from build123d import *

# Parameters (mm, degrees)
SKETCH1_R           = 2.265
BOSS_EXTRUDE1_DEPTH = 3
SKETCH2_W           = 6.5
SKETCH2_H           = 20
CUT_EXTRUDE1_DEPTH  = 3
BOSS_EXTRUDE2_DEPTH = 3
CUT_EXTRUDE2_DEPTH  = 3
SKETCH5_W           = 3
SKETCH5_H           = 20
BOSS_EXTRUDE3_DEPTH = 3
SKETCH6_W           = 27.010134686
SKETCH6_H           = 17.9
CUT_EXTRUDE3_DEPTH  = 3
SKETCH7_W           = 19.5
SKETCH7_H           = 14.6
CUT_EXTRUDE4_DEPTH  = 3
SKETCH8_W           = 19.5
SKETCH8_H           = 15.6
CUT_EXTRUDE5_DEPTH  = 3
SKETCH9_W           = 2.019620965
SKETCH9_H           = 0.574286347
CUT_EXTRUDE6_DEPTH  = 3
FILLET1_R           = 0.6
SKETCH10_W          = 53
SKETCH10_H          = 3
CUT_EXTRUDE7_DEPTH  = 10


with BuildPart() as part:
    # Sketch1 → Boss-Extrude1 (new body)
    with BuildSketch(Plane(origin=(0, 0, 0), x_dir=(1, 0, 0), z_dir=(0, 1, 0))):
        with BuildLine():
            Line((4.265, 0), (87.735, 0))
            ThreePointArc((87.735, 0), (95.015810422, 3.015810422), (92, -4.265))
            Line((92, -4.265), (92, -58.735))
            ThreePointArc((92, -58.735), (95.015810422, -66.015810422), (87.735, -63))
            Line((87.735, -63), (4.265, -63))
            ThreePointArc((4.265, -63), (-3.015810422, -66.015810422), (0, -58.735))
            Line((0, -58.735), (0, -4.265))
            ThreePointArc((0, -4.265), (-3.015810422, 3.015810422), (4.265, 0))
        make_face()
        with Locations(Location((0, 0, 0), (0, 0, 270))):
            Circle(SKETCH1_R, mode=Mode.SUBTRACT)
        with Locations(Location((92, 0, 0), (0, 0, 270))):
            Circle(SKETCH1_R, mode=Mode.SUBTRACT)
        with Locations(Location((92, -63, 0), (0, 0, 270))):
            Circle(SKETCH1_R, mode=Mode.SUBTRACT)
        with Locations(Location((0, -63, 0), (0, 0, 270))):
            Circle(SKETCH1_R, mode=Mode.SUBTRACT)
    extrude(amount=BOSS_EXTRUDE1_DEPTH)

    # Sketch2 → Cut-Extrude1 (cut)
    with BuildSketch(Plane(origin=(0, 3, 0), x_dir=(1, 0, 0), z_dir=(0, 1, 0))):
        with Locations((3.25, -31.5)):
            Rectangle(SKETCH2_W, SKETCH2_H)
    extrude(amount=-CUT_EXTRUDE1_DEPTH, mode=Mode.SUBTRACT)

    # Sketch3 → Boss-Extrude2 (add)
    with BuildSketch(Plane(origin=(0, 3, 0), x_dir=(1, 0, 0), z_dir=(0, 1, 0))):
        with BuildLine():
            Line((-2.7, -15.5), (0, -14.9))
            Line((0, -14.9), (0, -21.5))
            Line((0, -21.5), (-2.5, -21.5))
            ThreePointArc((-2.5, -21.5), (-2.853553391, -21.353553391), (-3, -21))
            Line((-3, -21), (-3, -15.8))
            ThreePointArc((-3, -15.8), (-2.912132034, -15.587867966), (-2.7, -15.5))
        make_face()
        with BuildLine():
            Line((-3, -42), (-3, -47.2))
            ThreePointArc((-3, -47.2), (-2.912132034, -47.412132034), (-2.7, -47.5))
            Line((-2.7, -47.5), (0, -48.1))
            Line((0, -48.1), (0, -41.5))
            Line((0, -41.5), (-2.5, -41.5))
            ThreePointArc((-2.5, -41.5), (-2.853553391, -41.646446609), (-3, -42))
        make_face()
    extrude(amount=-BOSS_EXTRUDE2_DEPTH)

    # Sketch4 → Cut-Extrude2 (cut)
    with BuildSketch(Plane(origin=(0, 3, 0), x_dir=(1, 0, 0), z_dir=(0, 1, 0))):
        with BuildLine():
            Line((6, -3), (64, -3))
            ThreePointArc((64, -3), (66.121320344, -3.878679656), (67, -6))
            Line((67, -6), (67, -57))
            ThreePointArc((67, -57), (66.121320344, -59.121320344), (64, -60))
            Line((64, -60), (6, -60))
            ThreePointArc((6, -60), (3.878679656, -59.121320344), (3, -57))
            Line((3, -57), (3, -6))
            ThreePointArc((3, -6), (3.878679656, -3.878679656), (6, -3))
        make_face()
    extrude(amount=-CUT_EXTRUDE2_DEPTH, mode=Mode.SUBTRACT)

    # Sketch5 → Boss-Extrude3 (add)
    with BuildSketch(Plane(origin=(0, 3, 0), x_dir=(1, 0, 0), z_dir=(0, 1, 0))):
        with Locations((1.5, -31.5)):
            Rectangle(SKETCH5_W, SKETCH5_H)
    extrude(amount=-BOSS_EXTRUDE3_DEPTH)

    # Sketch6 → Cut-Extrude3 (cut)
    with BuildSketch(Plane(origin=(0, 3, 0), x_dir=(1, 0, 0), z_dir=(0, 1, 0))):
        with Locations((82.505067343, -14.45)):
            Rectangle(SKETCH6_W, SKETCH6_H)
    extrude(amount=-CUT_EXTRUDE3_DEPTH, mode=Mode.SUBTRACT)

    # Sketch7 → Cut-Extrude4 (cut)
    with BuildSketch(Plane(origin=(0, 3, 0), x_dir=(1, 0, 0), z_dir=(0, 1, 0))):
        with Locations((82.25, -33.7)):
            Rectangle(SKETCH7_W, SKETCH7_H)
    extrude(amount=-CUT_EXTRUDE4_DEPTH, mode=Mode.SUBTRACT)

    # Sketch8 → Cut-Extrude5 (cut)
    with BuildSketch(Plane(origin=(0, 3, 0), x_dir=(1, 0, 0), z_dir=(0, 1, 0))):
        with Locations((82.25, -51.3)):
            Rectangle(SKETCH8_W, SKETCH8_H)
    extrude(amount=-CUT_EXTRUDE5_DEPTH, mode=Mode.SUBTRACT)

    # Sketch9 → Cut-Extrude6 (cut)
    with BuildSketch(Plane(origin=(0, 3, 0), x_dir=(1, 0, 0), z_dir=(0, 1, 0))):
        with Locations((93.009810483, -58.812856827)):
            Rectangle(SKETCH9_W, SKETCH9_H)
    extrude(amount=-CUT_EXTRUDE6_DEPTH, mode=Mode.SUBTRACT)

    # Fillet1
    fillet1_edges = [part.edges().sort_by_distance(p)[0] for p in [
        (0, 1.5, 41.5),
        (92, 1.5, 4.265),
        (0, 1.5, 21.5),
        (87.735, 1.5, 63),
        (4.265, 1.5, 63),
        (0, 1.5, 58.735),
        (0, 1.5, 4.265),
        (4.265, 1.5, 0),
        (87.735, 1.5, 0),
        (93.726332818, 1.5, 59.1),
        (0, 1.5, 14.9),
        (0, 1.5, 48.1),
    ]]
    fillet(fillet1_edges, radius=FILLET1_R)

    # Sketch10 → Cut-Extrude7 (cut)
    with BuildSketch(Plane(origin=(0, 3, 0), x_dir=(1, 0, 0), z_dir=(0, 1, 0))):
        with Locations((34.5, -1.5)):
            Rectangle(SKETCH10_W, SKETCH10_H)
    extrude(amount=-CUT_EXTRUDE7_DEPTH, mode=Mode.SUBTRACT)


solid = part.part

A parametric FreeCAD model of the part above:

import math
import FreeCAD as App
import Part
import Sketcher
Q = App.Units.Quantity


def edges_at(feature, points):
    """Names of the edges that pass closest to the given points."""
    edges = feature.Shape.Edges
    near = lambda p: min(range(len(edges)), key=lambda i: edges[i].distToShape(Part.Vertex(*p))[0])
    return sorted({f"Edge{near(p) + 1}" for p in points})

doc = App.newDocument("Part")
body = doc.addObject("PartDesign::Body", "Body")

sketch1 = doc.addObject("Sketcher::SketchObject", "Sketch")
body.addObject(sketch1)
sketch1.AttachmentSupport = (doc.XZ_Plane, [""])
sketch1.MapMode = "FlatFace"
sketch1.addGeometry(Part.LineSegment(App.Vector(87.7, 0, 0), App.Vector(4.3, 0, 0)), False)
sketch1.addGeometry(Part.ArcOfCircle(Part.Circle(App.Vector(0, 0, 0), App.Vector(0, 0, 1), 4.3), math.radians(90), math.radians(360)), False)
sketch1.addGeometry(Part.LineSegment(App.Vector(0, 4.3, 0), App.Vector(0, 58.7, 0)), False)
sketch1.addGeometry(Part.ArcOfCircle(Part.Circle(App.Vector(0, 63, 0), App.Vector(0, 0, 1), 4.3), math.radians(0), math.radians(270)), False)
sketch1.addGeometry(Part.LineSegment(App.Vector(4.3, 63, 0), App.Vector(87.7, 63, 0)), False)
sketch1.addGeometry(Part.ArcOfCircle(Part.Circle(App.Vector(92, 63, 0), App.Vector(0, 0, 1), 4.3), math.radians(-90), math.radians(180)), False)
sketch1.addGeometry(Part.LineSegment(App.Vector(92, 58.7, 0), App.Vector(92, 4.3, 0)), False)
sketch1.addGeometry(Part.ArcOfCircle(Part.Circle(App.Vector(92, 0, 0), App.Vector(0, 0, 1), 4.3), math.radians(180), math.radians(450)), False)
sketch1.addGeometry(Part.Circle(App.Vector(92, 63, 0), App.Vector(0, 0, 1), 2.3), False)
sketch1.addGeometry(Part.Circle(App.Vector(0, 63, 0), App.Vector(0, 0, 1), 2.3), False)
sketch1.addGeometry(Part.Circle(App.Vector(92, 0, 0), App.Vector(0, 0, 1), 2.3), False)
sketch1.addGeometry(Part.Circle(App.Vector(0, 0, 0), App.Vector(0, 0, 1), 2.3), False)
sketch1.addConstraint(Sketcher.Constraint("Coincident", 0, 2, 1, 2))
sketch1.addConstraint(Sketcher.Constraint("Coincident", 1, 1, 2, 1))
sketch1.addConstraint(Sketcher.Constraint("Coincident", 2, 2, 3, 2))
sketch1.addConstraint(Sketcher.Constraint("Coincident", 3, 1, 4, 1))
sketch1.addConstraint(Sketcher.Constraint("Coincident", 4, 2, 5, 2))
sketch1.addConstraint(Sketcher.Constraint("Coincident", 5, 1, 6, 1))
sketch1.addConstraint(Sketcher.Constraint("Coincident", 6, 2, 7, 2))
sketch1.addConstraint(Sketcher.Constraint("Coincident", 7, 1, 0, 1))
sketch1.addConstraint(Sketcher.Constraint("Horizontal", 0))
sketch1.addConstraint(Sketcher.Constraint("Vertical", 2))
sketch1.addConstraint(Sketcher.Constraint("Horizontal", 4))
sketch1.addConstraint(Sketcher.Constraint("Vertical", 6))
sketch1.addConstraint(Sketcher.Constraint("Coincident", 1, 3, -1, 1))
sketch1.addConstraint(Sketcher.Constraint("Coincident", 11, 3, -1, 1))
sketch1.addConstraint(Sketcher.Constraint("Coincident", 8, 3, 5, 3))
sketch1.addConstraint(Sketcher.Constraint("Coincident", 9, 3, 3, 3))
sketch1.addConstraint(Sketcher.Constraint("Coincident", 10, 3, 7, 3))
sketch1.addConstraint(Sketcher.Constraint("Equal", 1, 3))
sketch1.addConstraint(Sketcher.Constraint("Equal", 3, 5))
sketch1.addConstraint(Sketcher.Constraint("Equal", 5, 7))
sketch1.addConstraint(Sketcher.Constraint("Equal", 8, 9))
sketch1.addConstraint(Sketcher.Constraint("Equal", 9, 10))
sketch1.addConstraint(Sketcher.Constraint("Equal", 10, 11))
sketch1.addConstraint(Sketcher.Constraint("PointOnObject", 3, 3, -2))
sketch1.addConstraint(Sketcher.Constraint("PointOnObject", 7, 3, -1))
sketch1.addConstraint(Sketcher.Constraint("PointOnObject", 0, 2, -1))
sketch1.addConstraint(Sketcher.Constraint("PointOnObject", 1, 1, -2))
sketch1.addConstraint(Sketcher.Constraint("Horizontal", 3, 3, 5, 3))
sketch1.addConstraint(Sketcher.Constraint("Horizontal", 9, 3, 3, 1))
sketch1.addConstraint(Sketcher.Constraint("Vertical", 5, 3, 7, 3))
sketch1.addConstraint(Sketcher.Constraint("Vertical", 10, 3, 5, 1))
sketch1.addConstraint(Sketcher.Constraint("Diameter", 8, Q("4.53 mm")))
sketch1.addConstraint(Sketcher.Constraint("DistanceY", -1, 1, 3, 3, Q("63 mm")))
sketch1.addConstraint(Sketcher.Constraint("DistanceX", -1, 1, 5, 3, Q("92 mm")))
sketch1.addConstraint(Sketcher.Constraint("Radius", 1, Q("4.265 mm")))
pad1 = doc.addObject("PartDesign::Pad", "Pad")
body.addObject(pad1)
pad1.Profile = sketch1
pad1.Length = 3
pad1.Reversed = True

sketch2 = doc.addObject("Sketcher::SketchObject", "Sketch001")
body.addObject(sketch2)
sketch2.AttachmentSupport = (doc.XZ_Plane, [""])
sketch2.MapMode = "FlatFace"
sketch2.AttachmentOffset = App.Placement(App.Vector(0, 0, -3), App.Rotation())
sketch2.addGeometry(Part.LineSegment(App.Vector(0, 22, 0), App.Vector(0, 42, 0)), False)
sketch2.addGeometry(Part.LineSegment(App.Vector(0, 42, 0), App.Vector(6, 42, 0)), False)
sketch2.addGeometry(Part.LineSegment(App.Vector(6, 42, 0), App.Vector(6, 22, 0)), False)
sketch2.addGeometry(Part.LineSegment(App.Vector(6, 22, 0), App.Vector(0, 22, 0)), False)
sketch2.addConstraint(Sketcher.Constraint("Coincident", 0, 2, 1, 1))
sketch2.addConstraint(Sketcher.Constraint("Coincident", 1, 2, 2, 1))
sketch2.addConstraint(Sketcher.Constraint("Coincident", 2, 2, 3, 1))
sketch2.addConstraint(Sketcher.Constraint("Coincident", 3, 2, 0, 1))
sketch2.addConstraint(Sketcher.Constraint("Vertical", 0))
sketch2.addConstraint(Sketcher.Constraint("Horizontal", 1))
sketch2.addConstraint(Sketcher.Constraint("Vertical", 2))
sketch2.addConstraint(Sketcher.Constraint("Horizontal", 3))
sketch2.addConstraint(Sketcher.Constraint("PointOnObject", 0, 2, -2))
sketch2.addConstraint(Sketcher.Constraint("DistanceY", 0, 1, 0, 2, Q("20 mm")))
sketch2.addConstraint(Sketcher.Constraint("DistanceX", 1, 1, 1, 2, Q("6.5 mm")))
sketch2.addConstraint(Sketcher.Constraint("DistanceY", -1, 1, 0, 2, Q("41.5 mm")))
pocket1 = doc.addObject("PartDesign::Pocket", "Pocket")
body.addObject(pocket1)
pocket1.Profile = sketch2
pocket1.Length = 3
pocket1.Reversed = True

sketch3 = doc.addObject("Sketcher::SketchObject", "Sketch002")
body.addObject(sketch3)
sketch3.AttachmentSupport = (doc.XZ_Plane, [""])
sketch3.MapMode = "FlatFace"
sketch3.AttachmentOffset = App.Placement(App.Vector(0, 0, -3), App.Rotation())
sketch3.addGeometry(Part.LineSegment(App.Vector(0, 14.9, 0), App.Vector(-2.7, 15.5, 0)), False)
sketch3.addGeometry(Part.ArcOfCircle(Part.Circle(App.Vector(-2.7, 15.8, 0), App.Vector(0, 0, 1), 0.3), math.radians(-180), math.radians(-90)), False)
sketch3.addGeometry(Part.LineSegment(App.Vector(-3, 15.8, 0), App.Vector(-3, 21, 0)), False)
sketch3.addGeometry(Part.ArcOfCircle(Part.Circle(App.Vector(-2.5, 21, 0), App.Vector(0, 0, 1), 0.5), math.radians(90), math.radians(180)), False)
sketch3.addGeometry(Part.LineSegment(App.Vector(-2.5, 21.5, 0), App.Vector(0, 21.5, 0)), False)
sketch3.addGeometry(Part.LineSegment(App.Vector(0, 21.5, 0), App.Vector(0, 14.9, 0)), False)
sketch3.addGeometry(Part.LineSegment(App.Vector(-3, 42, 0), App.Vector(-3, 47.2, 0)), False)
sketch3.addGeometry(Part.ArcOfCircle(Part.Circle(App.Vector(-2.7, 47.2, 0), App.Vector(0, 0, 1), 0.3), math.radians(90), math.radians(180)), False)
sketch3.addGeometry(Part.LineSegment(App.Vector(-2.7, 47.5, 0), App.Vector(0, 48.1, 0)), False)
sketch3.addGeometry(Part.LineSegment(App.Vector(0, 48.1, 0), App.Vector(0, 41.5, 0)), False)
sketch3.addGeometry(Part.LineSegment(App.Vector(0, 41.5, 0), App.Vector(-2.5, 41.5, 0)), False)
sketch3.addGeometry(Part.ArcOfCircle(Part.Circle(App.Vector(-2.5, 42, 0), App.Vector(0, 0, 1), 0.5), math.radians(180), math.radians(270)), False)
sketch3.addConstraint(Sketcher.Constraint("Coincident", 0, 2, 1, 2))
sketch3.addConstraint(Sketcher.Constraint("Tangent", 1, 1, 2, 1))
sketch3.addConstraint(Sketcher.Constraint("Tangent", 2, 2, 3, 2))
sketch3.addConstraint(Sketcher.Constraint("Tangent", 3, 1, 4, 1))
sketch3.addConstraint(Sketcher.Constraint("Coincident", 4, 2, 5, 1))
sketch3.addConstraint(Sketcher.Constraint("Coincident", 5, 2, 0, 1))
sketch3.addConstraint(Sketcher.Constraint("Tangent", 6, 2, 7, 2))
sketch3.addConstraint(Sketcher.Constraint("Coincident", 7, 1, 8, 1))
sketch3.addConstraint(Sketcher.Constraint("Coincident", 8, 2, 9, 1))
sketch3.addConstraint(Sketcher.Constraint("Coincident", 9, 2, 10, 1))
sketch3.addConstraint(Sketcher.Constraint("Tangent", 10, 2, 11, 2))
sketch3.addConstraint(Sketcher.Constraint("Tangent", 11, 1, 6, 1))
sketch3.addConstraint(Sketcher.Constraint("Vertical", 2))
sketch3.addConstraint(Sketcher.Constraint("Horizontal", 4))
sketch3.addConstraint(Sketcher.Constraint("Vertical", 5))
sketch3.addConstraint(Sketcher.Constraint("Vertical", 6))
sketch3.addConstraint(Sketcher.Constraint("Vertical", 9))
sketch3.addConstraint(Sketcher.Constraint("Horizontal", 10))
sketch3.addConstraint(Sketcher.Constraint("Equal", 1, 7))
sketch3.addConstraint(Sketcher.Constraint("Equal", 3, 11))
sketch3.addConstraint(Sketcher.Constraint("PointOnObject", 4, 2, -2))
sketch3.addConstraint(Sketcher.Constraint("PointOnObject", 8, 2, -2))
sketch3.addConstraint(Sketcher.Constraint("Vertical", 1, 3, 7, 3))
sketch3.addConstraint(Sketcher.Constraint("Vertical", 7, 3, 0, 2))
sketch3.addConstraint(Sketcher.Constraint("Vertical", 0, 2, 7, 1))
sketch3.addConstraint(Sketcher.Constraint("Equal", 2, 6))
sketch3.addConstraint(Sketcher.Constraint("Equal", 5, 9))
sketch3.addConstraint(Sketcher.Constraint("Radius", 1, Q("0.3 mm")))
sketch3.addConstraint(Sketcher.Constraint("Radius", 3, Q("0.5 mm")))
sketch3.addConstraint(Sketcher.Constraint("DistanceX", 4, 1, 4, 2, Q("2.5 mm")))
sketch3.addConstraint(Sketcher.Constraint("DistanceY", 2, 1, 2, 2, Q("5.2 mm")))
sketch3.addConstraint(Sketcher.Constraint("DistanceY", 5, 2, 5, 1, Q("6.6 mm")))
sketch3.addConstraint(Sketcher.Constraint("DistanceY", -1, 1, 3, 3, Q("21 mm")))
sketch3.addConstraint(Sketcher.Constraint("DistanceY", -1, 1, 11, 3, Q("42 mm")))
pad2 = doc.addObject("PartDesign::Pad", "Pad001")
body.addObject(pad2)
pad2.Profile = sketch3
pad2.Length = 3

sketch4 = doc.addObject("Sketcher::SketchObject", "Sketch003")
body.addObject(sketch4)
sketch4.AttachmentSupport = (doc.XZ_Plane, [""])
sketch4.MapMode = "FlatFace"
sketch4.AttachmentOffset = App.Placement(App.Vector(0, 0, -3), App.Rotation())
sketch4.addGeometry(Part.LineSegment(App.Vector(64, 3, 0), App.Vector(6, 3, 0)), False)
sketch4.addGeometry(Part.ArcOfCircle(Part.Circle(App.Vector(6, 6, 0), App.Vector(0, 0, 1), 3), math.radians(180), math.radians(270)), False)
sketch4.addGeometry(Part.LineSegment(App.Vector(3, 6, 0), App.Vector(3, 57, 0)), False)
sketch4.addGeometry(Part.ArcOfCircle(Part.Circle(App.Vector(6, 57, 0), App.Vector(0, 0, 1), 3), math.radians(90), math.radians(180)), False)
sketch4.addGeometry(Part.LineSegment(App.Vector(6, 60, 0), App.Vector(64, 60, 0)), False)
sketch4.addGeometry(Part.ArcOfCircle(Part.Circle(App.Vector(64, 57, 0), App.Vector(0, 0, 1), 3), math.radians(0), math.radians(90)), False)
sketch4.addGeometry(Part.LineSegment(App.Vector(67, 57, 0), App.Vector(67, 6, 0)), False)
sketch4.addGeometry(Part.ArcOfCircle(Part.Circle(App.Vector(64, 6, 0), App.Vector(0, 0, 1), 3), math.radians(-90), math.radians(0)), False)
sketch4.addConstraint(Sketcher.Constraint("Tangent", 0, 2, 1, 2))
sketch4.addConstraint(Sketcher.Constraint("Tangent", 1, 1, 2, 1))
sketch4.addConstraint(Sketcher.Constraint("Tangent", 2, 2, 3, 2))
sketch4.addConstraint(Sketcher.Constraint("Tangent", 3, 1, 4, 1))
sketch4.addConstraint(Sketcher.Constraint("Tangent", 4, 2, 5, 2))
sketch4.addConstraint(Sketcher.Constraint("Tangent", 5, 1, 6, 1))
sketch4.addConstraint(Sketcher.Constraint("Tangent", 6, 2, 7, 2))
sketch4.addConstraint(Sketcher.Constraint("Tangent", 7, 1, 0, 1))
sketch4.addConstraint(Sketcher.Constraint("Horizontal", 0))
sketch4.addConstraint(Sketcher.Constraint("Vertical", 2))
sketch4.addConstraint(Sketcher.Constraint("Horizontal", 4))
sketch4.addConstraint(Sketcher.Constraint("Vertical", 6))
sketch4.addConstraint(Sketcher.Constraint("Equal", 1, 3))
sketch4.addConstraint(Sketcher.Constraint("Equal", 3, 5))
sketch4.addConstraint(Sketcher.Constraint("Equal", 5, 7))
sketch4.addConstraint(Sketcher.Constraint("Radius", 1, Q("3 mm")))
sketch4.addConstraint(Sketcher.Constraint("DistanceX", 0, 2, 0, 1, Q("58 mm")))
sketch4.addConstraint(Sketcher.Constraint("DistanceY", 2, 1, 2, 2, Q("51 mm")))
sketch4.addConstraint(Sketcher.Constraint("DistanceX", -1, 1, 1, 3, Q("6 mm")))
sketch4.addConstraint(Sketcher.Constraint("DistanceY", -1, 1, 1, 3, Q("6 mm")))
pocket2 = doc.addObject("PartDesign::Pocket", "Pocket001")
body.addObject(pocket2)
pocket2.Profile = sketch4
pocket2.Length = 3
pocket2.Reversed = True

sketch5 = doc.addObject("Sketcher::SketchObject", "Sketch004")
body.addObject(sketch5)
sketch5.AttachmentSupport = (doc.XZ_Plane, [""])
sketch5.MapMode = "FlatFace"
sketch5.AttachmentOffset = App.Placement(App.Vector(0, 0, -3), App.Rotation())
sketch5.addGeometry(Part.LineSegment(App.Vector(0, 21.5, 0), App.Vector(0, 41.5, 0)), False)
sketch5.addGeometry(Part.LineSegment(App.Vector(0, 41.5, 0), App.Vector(3, 41.5, 0)), False)
sketch5.addGeometry(Part.LineSegment(App.Vector(3, 41.5, 0), App.Vector(3, 21.5, 0)), False)
sketch5.addGeometry(Part.LineSegment(App.Vector(3, 21.5, 0), App.Vector(0, 21.5, 0)), False)
sketch5.addConstraint(Sketcher.Constraint("Coincident", 0, 2, 1, 1))
sketch5.addConstraint(Sketcher.Constraint("Coincident", 1, 2, 2, 1))
sketch5.addConstraint(Sketcher.Constraint("Coincident", 2, 2, 3, 1))
sketch5.addConstraint(Sketcher.Constraint("Coincident", 3, 2, 0, 1))
sketch5.addConstraint(Sketcher.Constraint("Vertical", 0))
sketch5.addConstraint(Sketcher.Constraint("Horizontal", 1))
sketch5.addConstraint(Sketcher.Constraint("Vertical", 2))
sketch5.addConstraint(Sketcher.Constraint("Horizontal", 3))
sketch5.addConstraint(Sketcher.Constraint("PointOnObject", 0, 2, -2))
sketch5.addConstraint(Sketcher.Constraint("DistanceX", 1, 1, 1, 2, Q("3 mm")))
sketch5.addConstraint(Sketcher.Constraint("DistanceY", 0, 1, 0, 2, Q("20 mm")))
sketch5.addConstraint(Sketcher.Constraint("DistanceY", -1, 1, 0, 2, Q("41.5 mm")))
pad3 = doc.addObject("PartDesign::Pad", "Pad002")
body.addObject(pad3)
pad3.Profile = sketch5
pad3.Length = 3

sketch6 = doc.addObject("Sketcher::SketchObject", "Sketch005")
body.addObject(sketch6)
sketch6.AttachmentSupport = (doc.XZ_Plane, [""])
sketch6.MapMode = "FlatFace"
sketch6.AttachmentOffset = App.Placement(App.Vector(0, 0, -3), App.Rotation())
sketch6.addGeometry(Part.LineSegment(App.Vector(69, 6, 0), App.Vector(69, 23, 0)), False)
sketch6.addGeometry(Part.LineSegment(App.Vector(69, 23, 0), App.Vector(96, 23, 0)), False)
sketch6.addGeometry(Part.LineSegment(App.Vector(96, 23, 0), App.Vector(96, 6, 0)), False)
sketch6.addGeometry(Part.LineSegment(App.Vector(96, 6, 0), App.Vector(69, 6, 0)), False)
sketch6.addConstraint(Sketcher.Constraint("Coincident", 0, 2, 1, 1))
sketch6.addConstraint(Sketcher.Constraint("Coincident", 1, 2, 2, 1))
sketch6.addConstraint(Sketcher.Constraint("Coincident", 2, 2, 3, 1))
sketch6.addConstraint(Sketcher.Constraint("Coincident", 3, 2, 0, 1))
sketch6.addConstraint(Sketcher.Constraint("Vertical", 0))
sketch6.addConstraint(Sketcher.Constraint("Horizontal", 1))
sketch6.addConstraint(Sketcher.Constraint("Vertical", 2))
sketch6.addConstraint(Sketcher.Constraint("Horizontal", 3))
sketch6.addConstraint(Sketcher.Constraint("DistanceY", 0, 1, 0, 2, Q("17.9 mm")))
sketch6.addConstraint(Sketcher.Constraint("DistanceX", -1, 1, 0, 2, Q("69 mm")))
sketch6.addConstraint(Sketcher.Constraint("DistanceY", -1, 1, 0, 2, Q("23.4 mm")))
sketch6.addConstraint(Sketcher.Constraint("DistanceX", 1, 1, 1, 2, Q("27.010135 mm")))
pocket3 = doc.addObject("PartDesign::Pocket", "Pocket002")
body.addObject(pocket3)
pocket3.Profile = sketch6
pocket3.Length = 3
pocket3.Reversed = True

sketch7 = doc.addObject("Sketcher::SketchObject", "Sketch006")
body.addObject(sketch7)
sketch7.AttachmentSupport = (doc.XZ_Plane, [""])
sketch7.MapMode = "FlatFace"
sketch7.AttachmentOffset = App.Placement(App.Vector(0, 0, -3), App.Rotation())
sketch7.addGeometry(Part.LineSegment(App.Vector(72, 26, 0), App.Vector(72, 41, 0)), False)
sketch7.addGeometry(Part.LineSegment(App.Vector(72, 41, 0), App.Vector(92, 41, 0)), False)
sketch7.addGeometry(Part.LineSegment(App.Vector(92, 41, 0), App.Vector(92, 26, 0)), False)
sketch7.addGeometry(Part.LineSegment(App.Vector(92, 26, 0), App.Vector(72, 26, 0)), False)
sketch7.addConstraint(Sketcher.Constraint("Coincident", 0, 2, 1, 1))
sketch7.addConstraint(Sketcher.Constraint("Coincident", 1, 2, 2, 1))
sketch7.addConstraint(Sketcher.Constraint("Coincident", 2, 2, 3, 1))
sketch7.addConstraint(Sketcher.Constraint("Coincident", 3, 2, 0, 1))
sketch7.addConstraint(Sketcher.Constraint("Vertical", 0))
sketch7.addConstraint(Sketcher.Constraint("Horizontal", 1))
sketch7.addConstraint(Sketcher.Constraint("Vertical", 2))
sketch7.addConstraint(Sketcher.Constraint("Horizontal", 3))
sketch7.addConstraint(Sketcher.Constraint("DistanceX", 1, 1, 1, 2, Q("19.5 mm")))
sketch7.addConstraint(Sketcher.Constraint("DistanceY", 0, 1, 0, 2, Q("14.6 mm")))
sketch7.addConstraint(Sketcher.Constraint("DistanceY", -1, 1, 0, 2, Q("41 mm")))
sketch7.addConstraint(Sketcher.Constraint("DistanceX", -1, 1, 1, 2, Q("92 mm")))
pocket4 = doc.addObject("PartDesign::Pocket", "Pocket003")
body.addObject(pocket4)
pocket4.Profile = sketch7
pocket4.Length = 3
pocket4.Reversed = True

sketch8 = doc.addObject("Sketcher::SketchObject", "Sketch007")
body.addObject(sketch8)
sketch8.AttachmentSupport = (doc.XZ_Plane, [""])
sketch8.MapMode = "FlatFace"
sketch8.AttachmentOffset = App.Placement(App.Vector(0, 0, -3), App.Rotation())
sketch8.addGeometry(Part.LineSegment(App.Vector(72, 44, 0), App.Vector(72, 59, 0)), False)
sketch8.addGeometry(Part.LineSegment(App.Vector(72, 59, 0), App.Vector(92, 59, 0)), False)
sketch8.addGeometry(Part.LineSegment(App.Vector(92, 59, 0), App.Vector(92, 44, 0)), False)
sketch8.addGeometry(Part.LineSegment(App.Vector(92, 44, 0), App.Vector(72, 44, 0)), False)
sketch8.addConstraint(Sketcher.Constraint("Coincident", 0, 2, 1, 1))
sketch8.addConstraint(Sketcher.Constraint("Coincident", 1, 2, 2, 1))
sketch8.addConstraint(Sketcher.Constraint("Coincident", 2, 2, 3, 1))
sketch8.addConstraint(Sketcher.Constraint("Coincident", 3, 2, 0, 1))
sketch8.addConstraint(Sketcher.Constraint("Vertical", 0))
sketch8.addConstraint(Sketcher.Constraint("Horizontal", 1))
sketch8.addConstraint(Sketcher.Constraint("Vertical", 2))
sketch8.addConstraint(Sketcher.Constraint("Horizontal", 3))
sketch8.addConstraint(Sketcher.Constraint("DistanceX", 1, 1, 1, 2, Q("19.5 mm")))
sketch8.addConstraint(Sketcher.Constraint("DistanceY", 0, 1, 0, 2, Q("15.6 mm")))
sketch8.addConstraint(Sketcher.Constraint("DistanceX", -1, 1, 1, 2, Q("92 mm")))
sketch8.addConstraint(Sketcher.Constraint("DistanceY", -1, 1, 0, 2, Q("59.1 mm")))
pocket5 = doc.addObject("PartDesign::Pocket", "Pocket004")
body.addObject(pocket5)
pocket5.Profile = sketch8
pocket5.Length = 3
pocket5.Reversed = True

sketch9 = doc.addObject("Sketcher::SketchObject", "Sketch008")
body.addObject(sketch9)
sketch9.AttachmentSupport = (doc.XZ_Plane, [""])
sketch9.MapMode = "FlatFace"
sketch9.AttachmentOffset = App.Placement(App.Vector(0, 0, -3), App.Rotation())
sketch9.addGeometry(Part.LineSegment(App.Vector(92, 58.5, 0), App.Vector(92, 59.1, 0)), False)
sketch9.addGeometry(Part.LineSegment(App.Vector(92, 59.1, 0), App.Vector(94, 59.1, 0)), False)
sketch9.addGeometry(Part.LineSegment(App.Vector(94, 59.1, 0), App.Vector(94, 58.5, 0)), False)
sketch9.addGeometry(Part.LineSegment(App.Vector(94, 58.5, 0), App.Vector(92, 58.5, 0)), False)
sketch9.addConstraint(Sketcher.Constraint("Coincident", 0, 2, 1, 1))
sketch9.addConstraint(Sketcher.Constraint("Coincident", 1, 2, 2, 1))
sketch9.addConstraint(Sketcher.Constraint("Coincident", 2, 2, 3, 1))
sketch9.addConstraint(Sketcher.Constraint("Coincident", 3, 2, 0, 1))
sketch9.addConstraint(Sketcher.Constraint("Vertical", 0))
sketch9.addConstraint(Sketcher.Constraint("Horizontal", 1))
sketch9.addConstraint(Sketcher.Constraint("Vertical", 2))
sketch9.addConstraint(Sketcher.Constraint("Horizontal", 3))
sketch9.addConstraint(Sketcher.Constraint("DistanceX", -1, 1, 0, 2, Q("92 mm")))
sketch9.addConstraint(Sketcher.Constraint("DistanceY", -1, 1, 0, 2, Q("59.1 mm")))
sketch9.addConstraint(Sketcher.Constraint("DistanceX", 1, 1, 1, 2, Q("2.019621 mm")))
sketch9.addConstraint(Sketcher.Constraint("DistanceY", 0, 1, 0, 2, Q("0.574286 mm")))
pocket6 = doc.addObject("PartDesign::Pocket", "Pocket005")
body.addObject(pocket6)
pocket6.Profile = sketch9
pocket6.Length = 3
pocket6.Reversed = True
doc.recompute()

fillet = doc.addObject("PartDesign::Fillet", "Fillet")
body.addObject(fillet)
fillet.Base = (pocket6, edges_at(pocket6, [
    (0, 1.5, 41.5),
    (92, 1.5, 4.265),
    (0, 1.5, 21.5),
    (87.735, 1.5, 63),
    (4.265, 1.5, 63),
    (0, 1.5, 58.735),
    (0, 1.5, 4.265),
    (4.265, 1.5, 0),
    (87.735, 1.5, 0),
    (93.726, 1.5, 59.1),
    (0, 1.5, 14.9),
    (0, 1.5, 48.1),
]))
fillet.Radius = 0.6

sketch10 = doc.addObject("Sketcher::SketchObject", "Sketch009")
body.addObject(sketch10)
sketch10.AttachmentSupport = (doc.XZ_Plane, [""])
sketch10.MapMode = "FlatFace"
sketch10.AttachmentOffset = App.Placement(App.Vector(0, 0, -3), App.Rotation())
sketch10.addGeometry(Part.LineSegment(App.Vector(8, 0, 0), App.Vector(8, 3, 0)), False)
sketch10.addGeometry(Part.LineSegment(App.Vector(8, 3, 0), App.Vector(61, 3, 0)), False)
sketch10.addGeometry(Part.LineSegment(App.Vector(61, 3, 0), App.Vector(61, 0, 0)), False)
sketch10.addGeometry(Part.LineSegment(App.Vector(61, 0, 0), App.Vector(8, 0, 0)), False)
sketch10.addConstraint(Sketcher.Constraint("Coincident", 0, 2, 1, 1))
sketch10.addConstraint(Sketcher.Constraint("Coincident", 1, 2, 2, 1))
sketch10.addConstraint(Sketcher.Constraint("Coincident", 2, 2, 3, 1))
sketch10.addConstraint(Sketcher.Constraint("Coincident", 3, 2, 0, 1))
sketch10.addConstraint(Sketcher.Constraint("Vertical", 0))
sketch10.addConstraint(Sketcher.Constraint("Horizontal", 1))
sketch10.addConstraint(Sketcher.Constraint("Vertical", 2))
sketch10.addConstraint(Sketcher.Constraint("Horizontal", 3))
sketch10.addConstraint(Sketcher.Constraint("PointOnObject", 2, 2, -1))
sketch10.addConstraint(Sketcher.Constraint("DistanceX", 1, 1, 1, 2, Q("53 mm")))
sketch10.addConstraint(Sketcher.Constraint("DistanceY", 0, 1, 0, 2, Q("3 mm")))
sketch10.addConstraint(Sketcher.Constraint("DistanceX", -1, 1, 0, 2, Q("8 mm")))
pocket7 = doc.addObject("PartDesign::Pocket", "Pocket006")
body.addObject(pocket7)
pocket7.Profile = sketch10
pocket7.Length = 10
pocket7.Reversed = True

doc.recompute()
